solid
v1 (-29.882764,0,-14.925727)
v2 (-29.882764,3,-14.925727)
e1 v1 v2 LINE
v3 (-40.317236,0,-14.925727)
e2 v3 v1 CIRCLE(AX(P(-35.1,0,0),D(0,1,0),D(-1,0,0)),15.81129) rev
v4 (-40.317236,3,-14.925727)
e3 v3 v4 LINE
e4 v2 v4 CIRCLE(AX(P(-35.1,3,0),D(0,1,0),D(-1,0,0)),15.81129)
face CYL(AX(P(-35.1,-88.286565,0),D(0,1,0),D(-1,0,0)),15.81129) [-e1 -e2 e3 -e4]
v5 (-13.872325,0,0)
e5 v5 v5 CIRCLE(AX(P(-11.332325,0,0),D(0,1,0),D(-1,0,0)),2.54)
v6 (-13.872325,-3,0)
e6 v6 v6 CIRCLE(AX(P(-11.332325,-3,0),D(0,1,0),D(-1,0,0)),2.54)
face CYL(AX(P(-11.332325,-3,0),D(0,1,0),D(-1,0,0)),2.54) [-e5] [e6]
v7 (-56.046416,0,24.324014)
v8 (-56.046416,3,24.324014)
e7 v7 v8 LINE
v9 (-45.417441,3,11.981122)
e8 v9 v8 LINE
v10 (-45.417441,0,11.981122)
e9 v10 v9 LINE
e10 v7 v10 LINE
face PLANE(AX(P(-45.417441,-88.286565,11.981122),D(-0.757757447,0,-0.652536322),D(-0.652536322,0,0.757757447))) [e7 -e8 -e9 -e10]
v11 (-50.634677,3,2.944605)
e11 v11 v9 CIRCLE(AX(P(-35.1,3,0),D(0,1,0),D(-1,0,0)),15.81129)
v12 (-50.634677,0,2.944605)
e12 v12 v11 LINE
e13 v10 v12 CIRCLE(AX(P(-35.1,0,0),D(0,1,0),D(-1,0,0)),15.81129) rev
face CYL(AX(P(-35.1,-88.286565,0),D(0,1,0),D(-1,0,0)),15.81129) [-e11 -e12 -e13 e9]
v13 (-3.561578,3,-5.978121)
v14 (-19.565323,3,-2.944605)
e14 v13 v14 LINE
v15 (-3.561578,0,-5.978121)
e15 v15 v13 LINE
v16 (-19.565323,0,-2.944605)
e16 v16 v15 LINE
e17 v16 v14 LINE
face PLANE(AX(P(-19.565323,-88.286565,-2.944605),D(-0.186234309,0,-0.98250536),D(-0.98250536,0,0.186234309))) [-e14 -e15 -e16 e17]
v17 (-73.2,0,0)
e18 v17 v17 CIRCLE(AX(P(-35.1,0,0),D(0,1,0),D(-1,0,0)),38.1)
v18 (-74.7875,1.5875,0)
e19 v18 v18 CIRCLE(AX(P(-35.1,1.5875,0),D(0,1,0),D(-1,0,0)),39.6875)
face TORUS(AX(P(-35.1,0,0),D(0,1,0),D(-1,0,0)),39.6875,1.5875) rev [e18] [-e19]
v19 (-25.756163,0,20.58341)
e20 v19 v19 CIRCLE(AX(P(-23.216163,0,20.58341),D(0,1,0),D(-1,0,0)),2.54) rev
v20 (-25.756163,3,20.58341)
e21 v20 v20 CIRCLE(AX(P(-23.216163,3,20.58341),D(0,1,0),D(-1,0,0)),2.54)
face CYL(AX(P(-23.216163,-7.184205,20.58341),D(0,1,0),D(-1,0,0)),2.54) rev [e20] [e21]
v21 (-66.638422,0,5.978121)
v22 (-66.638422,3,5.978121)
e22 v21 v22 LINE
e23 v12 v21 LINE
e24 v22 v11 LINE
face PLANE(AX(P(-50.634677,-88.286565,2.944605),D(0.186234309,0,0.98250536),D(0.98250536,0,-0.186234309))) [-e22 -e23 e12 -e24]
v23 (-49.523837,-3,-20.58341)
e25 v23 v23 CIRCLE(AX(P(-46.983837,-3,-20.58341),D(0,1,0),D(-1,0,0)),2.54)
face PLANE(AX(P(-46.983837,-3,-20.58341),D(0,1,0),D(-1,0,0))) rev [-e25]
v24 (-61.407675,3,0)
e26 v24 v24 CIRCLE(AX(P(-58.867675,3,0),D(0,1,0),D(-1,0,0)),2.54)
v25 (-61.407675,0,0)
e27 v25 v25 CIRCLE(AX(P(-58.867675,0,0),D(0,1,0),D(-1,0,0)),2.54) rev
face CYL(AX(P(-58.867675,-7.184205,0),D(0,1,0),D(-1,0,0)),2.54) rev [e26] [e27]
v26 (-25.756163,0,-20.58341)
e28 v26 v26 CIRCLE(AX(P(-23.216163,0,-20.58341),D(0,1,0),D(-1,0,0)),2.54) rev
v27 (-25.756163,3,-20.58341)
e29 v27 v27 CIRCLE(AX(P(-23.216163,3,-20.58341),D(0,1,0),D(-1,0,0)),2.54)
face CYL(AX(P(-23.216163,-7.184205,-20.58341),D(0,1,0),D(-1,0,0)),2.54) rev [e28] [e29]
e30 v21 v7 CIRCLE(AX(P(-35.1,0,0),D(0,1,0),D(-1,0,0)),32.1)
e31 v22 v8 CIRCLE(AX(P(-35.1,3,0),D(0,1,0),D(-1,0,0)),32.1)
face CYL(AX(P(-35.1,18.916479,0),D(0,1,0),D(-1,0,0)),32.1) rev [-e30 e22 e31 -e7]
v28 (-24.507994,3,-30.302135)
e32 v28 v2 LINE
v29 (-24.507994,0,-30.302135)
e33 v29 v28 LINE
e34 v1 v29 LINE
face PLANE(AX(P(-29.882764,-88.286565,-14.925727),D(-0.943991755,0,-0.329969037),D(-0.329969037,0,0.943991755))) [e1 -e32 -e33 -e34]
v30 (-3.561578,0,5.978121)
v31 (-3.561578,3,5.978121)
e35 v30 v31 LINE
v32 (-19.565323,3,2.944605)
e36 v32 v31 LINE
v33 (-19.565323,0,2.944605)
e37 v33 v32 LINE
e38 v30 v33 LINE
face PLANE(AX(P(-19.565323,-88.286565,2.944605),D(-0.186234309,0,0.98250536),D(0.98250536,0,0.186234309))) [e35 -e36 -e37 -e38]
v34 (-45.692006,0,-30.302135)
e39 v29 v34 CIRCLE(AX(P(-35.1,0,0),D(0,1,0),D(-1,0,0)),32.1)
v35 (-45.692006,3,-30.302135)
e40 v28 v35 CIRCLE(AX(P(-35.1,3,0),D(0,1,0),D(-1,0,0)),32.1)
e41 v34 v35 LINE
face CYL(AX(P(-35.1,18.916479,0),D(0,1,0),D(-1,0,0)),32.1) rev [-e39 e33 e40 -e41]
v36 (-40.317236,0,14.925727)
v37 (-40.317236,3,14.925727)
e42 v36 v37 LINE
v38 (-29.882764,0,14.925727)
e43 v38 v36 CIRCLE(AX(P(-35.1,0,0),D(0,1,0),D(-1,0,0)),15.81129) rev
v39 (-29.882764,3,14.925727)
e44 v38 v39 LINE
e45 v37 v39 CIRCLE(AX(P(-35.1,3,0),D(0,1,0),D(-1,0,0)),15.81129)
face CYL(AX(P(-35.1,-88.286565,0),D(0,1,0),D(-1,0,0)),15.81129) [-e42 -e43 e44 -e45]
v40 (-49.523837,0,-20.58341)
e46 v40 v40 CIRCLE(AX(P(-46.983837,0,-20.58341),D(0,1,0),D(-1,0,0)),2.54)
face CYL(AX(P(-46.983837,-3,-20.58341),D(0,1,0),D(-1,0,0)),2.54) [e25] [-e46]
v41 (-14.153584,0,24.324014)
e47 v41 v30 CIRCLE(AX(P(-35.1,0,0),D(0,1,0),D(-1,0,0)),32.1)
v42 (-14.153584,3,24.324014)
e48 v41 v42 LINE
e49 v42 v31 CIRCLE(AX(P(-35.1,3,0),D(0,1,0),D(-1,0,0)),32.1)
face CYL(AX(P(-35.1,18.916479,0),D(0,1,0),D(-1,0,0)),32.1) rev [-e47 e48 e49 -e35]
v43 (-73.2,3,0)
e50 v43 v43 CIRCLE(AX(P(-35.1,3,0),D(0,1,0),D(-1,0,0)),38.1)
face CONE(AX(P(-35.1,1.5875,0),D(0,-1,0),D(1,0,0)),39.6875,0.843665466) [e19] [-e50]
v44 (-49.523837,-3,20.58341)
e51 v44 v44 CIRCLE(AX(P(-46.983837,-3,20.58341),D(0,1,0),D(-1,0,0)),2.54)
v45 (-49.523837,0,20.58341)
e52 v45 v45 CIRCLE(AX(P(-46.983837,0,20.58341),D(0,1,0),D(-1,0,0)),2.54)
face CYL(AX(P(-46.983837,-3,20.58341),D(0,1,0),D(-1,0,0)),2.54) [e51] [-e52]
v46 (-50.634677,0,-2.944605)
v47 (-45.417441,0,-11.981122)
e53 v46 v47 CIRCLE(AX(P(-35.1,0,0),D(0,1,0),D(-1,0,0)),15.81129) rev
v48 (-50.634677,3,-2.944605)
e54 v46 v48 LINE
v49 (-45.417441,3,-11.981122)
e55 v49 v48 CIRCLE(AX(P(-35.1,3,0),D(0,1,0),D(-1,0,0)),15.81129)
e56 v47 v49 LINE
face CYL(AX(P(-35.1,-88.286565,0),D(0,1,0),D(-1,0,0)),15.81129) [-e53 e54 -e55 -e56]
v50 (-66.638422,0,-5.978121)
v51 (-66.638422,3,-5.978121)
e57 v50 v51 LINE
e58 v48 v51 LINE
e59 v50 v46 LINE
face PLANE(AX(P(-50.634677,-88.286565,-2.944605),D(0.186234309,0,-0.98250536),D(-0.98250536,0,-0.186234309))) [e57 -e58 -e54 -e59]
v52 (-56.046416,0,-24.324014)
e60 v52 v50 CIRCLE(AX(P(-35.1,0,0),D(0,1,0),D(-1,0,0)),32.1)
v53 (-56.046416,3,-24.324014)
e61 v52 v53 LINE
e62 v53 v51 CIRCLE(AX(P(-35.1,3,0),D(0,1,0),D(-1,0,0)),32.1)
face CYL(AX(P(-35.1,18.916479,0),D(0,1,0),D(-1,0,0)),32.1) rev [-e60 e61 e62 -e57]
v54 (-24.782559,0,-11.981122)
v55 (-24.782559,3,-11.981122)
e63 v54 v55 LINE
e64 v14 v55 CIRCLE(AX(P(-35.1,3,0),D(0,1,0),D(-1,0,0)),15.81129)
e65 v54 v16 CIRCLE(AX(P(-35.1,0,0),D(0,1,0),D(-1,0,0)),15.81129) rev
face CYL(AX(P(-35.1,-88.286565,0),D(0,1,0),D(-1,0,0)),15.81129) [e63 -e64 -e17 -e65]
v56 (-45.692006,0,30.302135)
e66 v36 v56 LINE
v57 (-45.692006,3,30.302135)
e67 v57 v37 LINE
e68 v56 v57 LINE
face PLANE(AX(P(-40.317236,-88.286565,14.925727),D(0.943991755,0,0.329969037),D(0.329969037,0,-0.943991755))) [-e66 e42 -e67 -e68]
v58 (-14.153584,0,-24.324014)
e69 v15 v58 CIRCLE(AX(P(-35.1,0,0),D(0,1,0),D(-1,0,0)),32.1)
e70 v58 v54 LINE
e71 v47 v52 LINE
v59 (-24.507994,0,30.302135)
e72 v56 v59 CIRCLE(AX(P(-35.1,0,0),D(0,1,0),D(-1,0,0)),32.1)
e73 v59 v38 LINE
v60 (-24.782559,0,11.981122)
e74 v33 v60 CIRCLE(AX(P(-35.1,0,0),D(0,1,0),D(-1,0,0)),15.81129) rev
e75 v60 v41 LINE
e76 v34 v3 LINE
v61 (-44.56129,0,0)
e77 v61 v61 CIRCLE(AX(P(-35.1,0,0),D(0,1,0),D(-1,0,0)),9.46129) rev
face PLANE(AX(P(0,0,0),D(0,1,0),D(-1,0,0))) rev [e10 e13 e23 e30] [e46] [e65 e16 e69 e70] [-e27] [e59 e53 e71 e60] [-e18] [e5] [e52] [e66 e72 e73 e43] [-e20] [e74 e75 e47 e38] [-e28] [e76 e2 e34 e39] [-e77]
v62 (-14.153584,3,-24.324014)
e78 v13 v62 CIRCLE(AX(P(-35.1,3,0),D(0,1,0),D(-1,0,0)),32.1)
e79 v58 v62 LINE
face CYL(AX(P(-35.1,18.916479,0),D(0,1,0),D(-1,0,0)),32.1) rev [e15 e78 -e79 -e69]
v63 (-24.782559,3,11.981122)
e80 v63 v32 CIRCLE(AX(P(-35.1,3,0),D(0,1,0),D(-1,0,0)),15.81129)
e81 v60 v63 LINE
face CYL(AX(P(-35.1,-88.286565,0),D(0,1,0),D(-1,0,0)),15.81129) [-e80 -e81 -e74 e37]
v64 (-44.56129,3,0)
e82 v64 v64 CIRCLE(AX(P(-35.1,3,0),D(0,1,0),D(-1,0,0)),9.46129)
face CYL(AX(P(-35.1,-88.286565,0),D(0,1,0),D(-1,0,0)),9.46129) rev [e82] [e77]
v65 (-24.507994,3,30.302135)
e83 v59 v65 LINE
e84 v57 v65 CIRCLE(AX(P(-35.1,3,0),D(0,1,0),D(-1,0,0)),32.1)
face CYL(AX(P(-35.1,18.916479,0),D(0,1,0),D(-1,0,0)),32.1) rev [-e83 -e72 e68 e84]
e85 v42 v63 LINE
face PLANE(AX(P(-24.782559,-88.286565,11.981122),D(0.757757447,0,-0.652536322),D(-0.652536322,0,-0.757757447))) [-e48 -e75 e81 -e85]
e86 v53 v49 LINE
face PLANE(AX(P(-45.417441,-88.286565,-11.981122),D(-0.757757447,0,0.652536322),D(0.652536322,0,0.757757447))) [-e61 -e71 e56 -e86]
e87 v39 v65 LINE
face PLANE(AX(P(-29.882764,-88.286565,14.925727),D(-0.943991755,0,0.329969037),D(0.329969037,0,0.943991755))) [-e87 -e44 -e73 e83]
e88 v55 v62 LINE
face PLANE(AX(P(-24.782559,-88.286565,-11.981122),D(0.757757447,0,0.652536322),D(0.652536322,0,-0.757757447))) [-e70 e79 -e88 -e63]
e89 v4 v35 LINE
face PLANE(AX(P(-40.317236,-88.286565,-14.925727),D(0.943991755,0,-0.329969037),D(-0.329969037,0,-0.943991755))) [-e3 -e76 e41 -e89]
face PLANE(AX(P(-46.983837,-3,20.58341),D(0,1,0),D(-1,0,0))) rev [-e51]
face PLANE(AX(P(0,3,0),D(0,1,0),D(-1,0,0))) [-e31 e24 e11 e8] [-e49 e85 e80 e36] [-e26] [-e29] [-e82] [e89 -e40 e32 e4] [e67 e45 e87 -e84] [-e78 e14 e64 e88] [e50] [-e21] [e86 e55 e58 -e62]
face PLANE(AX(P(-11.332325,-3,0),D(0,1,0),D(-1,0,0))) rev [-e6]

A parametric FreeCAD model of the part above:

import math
import FreeCAD as App
import Part
import Sketcher
from FreeCAD import Vector

doc = App.newDocument("Part")
params = doc.addObject("Spreadsheet::Sheet", "Params")
for row, (alias, value) in enumerate([
    ("sketch1_width", "6 mm"),
    ("sketch1_height", "3 mm"),
    ("revolution_angle", "360 deg"),
    ("sketch2_radius", "32.1 mm"),
    ("pad1_length", "3 mm"),
    ("sketch3_diameter", "5.08 mm"),
    ("pad2_length", "6 mm"),
    ("sketch4_diameter", "5.08 mm"),
    ("pocket1_length", "3 mm"),
], start=1):
    params.set(f"A{row}", alias)
    params.set(f"B{row}", "=" + value)
    params.setAlias(f"B{row}", alias)

body = doc.addObject("PartDesign::Body", "Body")

sketch1 = body.newObject("Sketcher::SketchObject", "Sketch")
sketch1.AttachmentSupport = (doc.getObject("XY_Plane"), [""])
sketch1.MapMode = "FlatFace"
sketch1.addGeometry([
    Part.LineSegment(Vector(-3, 3, 0), Vector(-3, 0, 0)),
    Part.LineSegment(Vector(-3, 0, 0), Vector(3, 0, 0)),
    Part.ArcOfCircle(Part.Circle(Vector(4.6, 0, 0), Vector(0, 0, 1), 1.6), math.radians(90), math.radians(180)),
    Part.LineSegment(Vector(4.6, 1.6, 0), Vector(3, 3, 0)),
    Part.LineSegment(Vector(3, 3, 0), Vector(-3, 3, 0)),
], False)
sketch1.addGeometry(Part.LineSegment(Vector(-35.1, 3, 0), Vector(-35.1, 0, 0)), True)
sketch1.addConstraint([
    Sketcher.Constraint("Coincident", 0, 2, 1, 1),
    Sketcher.Constraint("Coincident", 1, 2, 2, 2),
    Sketcher.Constraint("Coincident", 2, 1, 3, 1),
    Sketcher.Constraint("Coincident", 3, 2, 4, 1),
    Sketcher.Constraint("Coincident", 4, 2, 0, 1),
    Sketcher.Constraint("Vertical", 0),
    Sketcher.Constraint("Horizontal", 1),
    Sketcher.Constraint("Horizontal", 4),
    Sketcher.Constraint("Vertical", 5),
    Sketcher.Constraint("Symmetric", 0, 2, 1, 2, -1, 1),
    Sketcher.Constraint("PointOnObject", 2, 3, -1),
    Sketcher.Constraint("PointOnObject", 5, 2, -1),
    Sketcher.Constraint("Horizontal", 4, 2, 5, 1),
    Sketcher.Constraint("Vertical", 1, 2, 3, 2),
    Sketcher.Constraint("DistanceX", 1, 1, 1, 2, 6.0),
    Sketcher.Constraint("DistanceY", 0, 2, 0, 1, 3.0),
    Sketcher.Constraint("DistanceX", 5, 1, -1, 1, 35.1),
    Sketcher.Constraint("Radius", 2, 1.5875),
    Sketcher.Constraint("DistanceX", -1, 1, 2, 1, 4.5875),
])
sketch1.setExpression("Constraints[14]", "Params.sketch1_width")
sketch1.setExpression("Constraints[15]", "Params.sketch1_height")
revolution = body.newObject("PartDesign::Revolution", "Revolution")
revolution.Profile = sketch1
revolution.ReferenceAxis = (sketch1, ["Axis0"])
revolution.setExpression("Angle", "Params.revolution_angle")

sketch2 = body.newObject("Sketcher::SketchObject", "Sketch001")
sketch2.AttachmentSupport = (doc.getObject("XZ_Plane"), [""])
sketch2.MapMode = "FlatFace"
sketch2.addGeometry([
    Part.LineSegment(Vector(-56, -24, 0), Vector(-45, -12, 0)),
    Part.ArcOfCircle(Part.Circle(Vector(-35, 0, 0), Vector(0, 0, 1), 16), math.radians(-169), math.radians(-131)),
    Part.LineSegment(Vector(-51, -3, 0), Vector(-67, -6, 0)),
    Part.ArcOfCircle(Part.Circle(Vector(-35, 0, 0), Vector(0, 0, 1), 32), math.radians(169), math.radians(191)),
    Part.LineSegment(Vector(-67, 6, 0), Vector(-51, 3, 0)),
    Part.ArcOfCircle(Part.Circle(Vector(-35, 0, 0), Vector(0, 0, 1), 16), math.radians(131), math.radians(169)),
    Part.LineSegment(Vector(-45, 12, 0), Vector(-56, 24, 0)),
    Part.ArcOfCircle(Part.Circle(Vector(-35, 0, 0), Vector(0, 0, 1), 32), math.radians(109), math.radians(131)),
    Part.LineSegment(Vector(-46, 30, 0), Vector(-40, 15, 0)),
    Part.ArcOfCircle(Part.Circle(Vector(-35, 0, 0), Vector(0, 0, 1), 16), math.radians(71), math.radians(109)),
    Part.LineSegment(Vector(-30, 15, 0), Vector(-25, 30, 0)),
    Part.ArcOfCircle(Part.Circle(Vector(-35, 0, 0), Vector(0, 0, 1), 32), math.radians(49), math.radians(71)),
    Part.LineSegment(Vector(-14, 24, 0), Vector(-25, 12, 0)),
    Part.ArcOfCircle(Part.Circle(Vector(-35, 0, 0), Vector(0, 0, 1), 16), math.radians(11), math.radians(49)),
    Part.LineSegment(Vector(-20, 3, 0), Vector(-4, 6, 0)),
    Part.ArcOfCircle(Part.Circle(Vector(-35, 0, 0), Vector(0, 0, 1), 32), math.radians(-11), math.radians(11)),
    Part.LineSegment(Vector(-4, -6, 0), Vector(-20, -3, 0)),
    Part.ArcOfCircle(Part.Circle(Vector(-35, 0, 0), Vector(0, 0, 1), 16), math.radians(-49), math.radians(-11)),
    Part.LineSegment(Vector(-25, -12, 0), Vector(-14, -24, 0)),
    Part.ArcOfCircle(Part.Circle(Vector(-35, 0, 0), Vector(0, 0, 1), 32), math.radians(-71), math.radians(-49)),
    Part.LineSegment(Vector(-25, -30, 0), Vector(-30, -15, 0)),
    Part.ArcOfCircle(Part.Circle(Vector(-35, 0, 0), Vector(0, 0, 1), 16), math.radians(-109), math.radians(-71)),
    Part.LineSegment(Vector(-40, -15, 0), Vector(-46, -30, 0)),
    Part.ArcOfCircle(Part.Circle(Vector(-35, 0, 0), Vector(0, 0, 1), 32), math.radians(-131), math.radians(-109)),
    Part.Circle(Vector(-35, 0, 0), Vector(0, 0, 1), 9),
], False)
sketch2.addConstraint([
    Sketcher.Constraint("Coincident", 0, 2, 1, 2),
    Sketcher.Constraint("Coincident", 1, 1, 2, 1),
    Sketcher.Constraint("Coincident", 2, 2, 3, 2),
    Sketcher.Constraint("Coincident", 3, 1, 4, 1),
    Sketcher.Constraint("Coincident", 4, 2, 5, 2),
    Sketcher.Constraint("Coincident", 5, 1, 6, 1),
    Sketcher.Constraint("Coincident", 6, 2, 7, 2),
    Sketcher.Constraint("Coincident", 7, 1, 8, 1),
    Sketcher.Constraint("Coincident", 8, 2, 9, 2),
    Sketcher.Constraint("Coincident", 9, 1, 10, 1),
    Sketcher.Constraint("Coincident", 10, 2, 11, 2),
    Sketcher.Constraint("Coincident", 11, 1, 12, 1),
    Sketcher.Constraint("Coincident", 12, 2, 13, 2),
    Sketcher.Constraint("Coincident", 13, 1, 14, 1),
    Sketcher.Constraint("Coincident", 14, 2, 15, 2),
    Sketcher.Constraint("Coincident", 15, 1, 16, 1),
    Sketcher.Constraint("Coincident", 16, 2, 17, 2),
    Sketcher.Constraint("Coincident", 17, 1, 18, 1),
    Sketcher.Constraint("Coincident", 18, 2, 19, 2),
    Sketcher.Constraint("Coincident", 19, 1, 20, 1),
    Sketcher.Constraint("Coincident", 20, 2, 21, 2),
    Sketcher.Constraint("Coincident", 21, 1, 22, 1),
    Sketcher.Constraint("Coincident", 22, 2, 23, 2),
    Sketcher.Constraint("Coincident", 23, 1, 0, 1),
    Sketcher.Constraint("Coincident", 3, 3, 1, 3),
    Sketcher.Constraint("Coincident", 5, 3, 1, 3),
    Sketcher.Constraint("Coincident", 7, 3, 1, 3),
    Sketcher.Constraint("Coincident", 9, 3, 1, 3),
    Sketcher.Constraint("Coincident", 11, 3, 1, 3),
    Sketcher.Constraint("Coincident", 13, 3, 1, 3),
    Sketcher.Constraint("Coincident", 15, 3, 1, 3),
    Sketcher.Constraint("Coincident", 17, 3, 1, 3),
    Sketcher.Constraint("Coincident", 19, 3, 1, 3),
    Sketcher.Constraint("Coincident", 21, 3, 1, 3),
    Sketcher.Constraint("Coincident", 23, 3, 1, 3),
    Sketcher.Constraint("Coincident", 24, 3, 1, 3),
    Sketcher.Constraint("Equal", 1, 5),
    Sketcher.Constraint("Equal", 3, 7),
    Sketcher.Constraint("Equal", 5, 9),
    Sketcher.Constraint("Equal", 7, 11),
    Sketcher.Constraint("Equal", 9, 13),
    Sketcher.Constraint("Equal", 11, 15),
    Sketcher.Constraint("Equal", 13, 17),
    Sketcher.Constraint("Equal", 15, 19),
    Sketcher.Constraint("Equal", 17, 21),
    Sketcher.Constraint("Equal", 19, 23),
    Sketcher.Constraint("Symmetric", 2, 2, 3, 1, -1),
    Sketcher.Constraint("Parallel", 0, 12),
    Sketcher.Constraint("Parallel", 2, 14),
    Sketcher.Constraint("Parallel", 4, 16),
    Sketcher.Constraint("Parallel", 6, 18),
    Sketcher.Constraint("Parallel", 8, 20),
    Sketcher.Constraint("Parallel", 10, 22),
    Sketcher.Constraint("Horizontal", 8, 2, 9, 1),
    Sketcher.Constraint("Horizontal", 7, 1, 10, 2),
    Sketcher.Constraint("Horizontal", 6, 2, 11, 1),
    Sketcher.Constraint("Horizontal", 5, 1, 12, 2),
    Sketcher.Constraint("Horizontal", 4, 2, 13, 1),
    Sketcher.Constraint("Horizontal", 3, 1, 14, 2),
    Sketcher.Constraint("Horizontal", 2, 2, 15, 1),
    Sketcher.Constraint("Horizontal", 0, 2, 17, 1),
    Sketcher.Constraint("Horizontal", 20, 2, 21, 1),
    Sketcher.Constraint("Vertical", 0, 2, 5, 1),
    Sketcher.Constraint("Vertical", 10, 2, 19, 1),
    Sketcher.Constraint("Radius", 3, 32.1),
    Sketcher.Constraint("DistanceX", 1, 3, -1, 1, 35.1),
    Sketcher.Constraint("Diameter", 24, 18.922579),
    Sketcher.Constraint("Radius", 1, 15.81129),
    Sketcher.Constraint("DistanceY", 0, 2, 2, 2, 6.003001),
    Sketcher.Constraint("DistanceX", 0, 2, -1, 1, 45.417441),
    Sketcher.Constraint("DistanceY", 1, 1, 4, 2, 5.889209),
    Sketcher.Constraint("DistanceY", 5, 1, 6, 2, 12.342892),
    Sketcher.Constraint("DistanceX", 6, 2, 7, 1, 10.35441),
    Sketcher.Constraint("DistanceX", 8, 2, 9, 1, 10.434472),
])
sketch2.setExpression("Constraints[64]", "Params.sketch2_radius")
pad1 = body.newObject("PartDesign::Pad", "Pad")
pad1.Profile = sketch2
pad1.setExpression("Length", "Params.pad1_length")
pad1.Reversed = True

sketch3 = body.newObject("Sketcher::SketchObject", "Sketch002")
sketch3.AttachmentSupport = (doc.getObject("XZ_Plane"), [""])
sketch3.MapMode = "FlatFace"
sketch3.AttachmentOffset = App.Placement(Vector(0, 0, -3), App.Rotation())
sketch3.addGeometry([
    Part.Circle(Vector(-47, -20.6, 0), Vector(0, 0, 1), 2.5),
    Part.Circle(Vector(-11.3, 0, 0), Vector(0, 0, 1), 2.5),
    Part.Circle(Vector(-47, 20.6, 0), Vector(0, 0, 1), 2.5),
], False)
sketch3.addConstraint([
    Sketcher.Constraint("Equal", 0, 1),
    Sketcher.Constraint("Equal", 1, 2),
    Sketcher.Constraint("Symmetric", 0, 3, 2, 3, -1),
    Sketcher.Constraint("PointOnObject", 1, 3, -1),
    Sketcher.Constraint("Diameter", 0, 5.08),
    Sketcher.Constraint("DistanceY", 0, 3, -1, 1, 20.58341),
    Sketcher.Constraint("DistanceX", 0, 3, -1, 1, 46.983837),
    Sketcher.Constraint("DistanceX", 1, 3, -1, 1, 11.332325),
])
sketch3.setExpression("Constraints[4]", "Params.sketch3_diameter")
pad2 = body.newObject("PartDesign::Pad", "Pad001")
pad2.Profile = sketch3
pad2.setExpression("Length", "Params.pad2_length")

sketch4 = body.newObject("Sketcher::SketchObject", "Sketch003")
sketch4.AttachmentSupport = (doc.getObject("XZ_Plane"), [""])
sketch4.MapMode = "FlatFace"
sketch4.AttachmentOffset = App.Placement(Vector(0, 0, -3), App.Rotation())
sketch4.addGeometry([
    Part.Circle(Vector(-23.2, -20.6, 0), Vector(0, 0, 1), 2.5),
    Part.Circle(Vector(-23.2, 20.6, 0), Vector(0, 0, 1), 2.5),
    Part.Circle(Vector(-58.9, 0, 0), Vector(0, 0, 1), 2.5),
], False)
sketch4.addConstraint([
    Sketcher.Constraint("Equal", 0, 1),
    Sketcher.Constraint("Equal", 1, 2),
    Sketcher.Constraint("Symmetric", 0, 3, 1, 3, -1),
    Sketcher.Constraint("PointOnObject", 2, 3, -1),
    Sketcher.Constraint("Diameter", 0, 5.08),
    Sketcher.Constraint("DistanceY", 0, 3, -1, 1, 20.58341),
    Sketcher.Constraint("DistanceX", 0, 3, -1, 1, 23.216163),
    Sketcher.Constraint("DistanceX", 2, 3, -1, 1, 58.867675),
])
sketch4.setExpression("Constraints[4]", "Params.sketch4_diameter")
pocket1 = body.newObject("PartDesign::Pocket", "Pocket")
pocket1.Profile = sketch4
pocket1.setExpression("Length", "Params.pocket1_length")
pocket1.Reversed = True

doc.recompute()
